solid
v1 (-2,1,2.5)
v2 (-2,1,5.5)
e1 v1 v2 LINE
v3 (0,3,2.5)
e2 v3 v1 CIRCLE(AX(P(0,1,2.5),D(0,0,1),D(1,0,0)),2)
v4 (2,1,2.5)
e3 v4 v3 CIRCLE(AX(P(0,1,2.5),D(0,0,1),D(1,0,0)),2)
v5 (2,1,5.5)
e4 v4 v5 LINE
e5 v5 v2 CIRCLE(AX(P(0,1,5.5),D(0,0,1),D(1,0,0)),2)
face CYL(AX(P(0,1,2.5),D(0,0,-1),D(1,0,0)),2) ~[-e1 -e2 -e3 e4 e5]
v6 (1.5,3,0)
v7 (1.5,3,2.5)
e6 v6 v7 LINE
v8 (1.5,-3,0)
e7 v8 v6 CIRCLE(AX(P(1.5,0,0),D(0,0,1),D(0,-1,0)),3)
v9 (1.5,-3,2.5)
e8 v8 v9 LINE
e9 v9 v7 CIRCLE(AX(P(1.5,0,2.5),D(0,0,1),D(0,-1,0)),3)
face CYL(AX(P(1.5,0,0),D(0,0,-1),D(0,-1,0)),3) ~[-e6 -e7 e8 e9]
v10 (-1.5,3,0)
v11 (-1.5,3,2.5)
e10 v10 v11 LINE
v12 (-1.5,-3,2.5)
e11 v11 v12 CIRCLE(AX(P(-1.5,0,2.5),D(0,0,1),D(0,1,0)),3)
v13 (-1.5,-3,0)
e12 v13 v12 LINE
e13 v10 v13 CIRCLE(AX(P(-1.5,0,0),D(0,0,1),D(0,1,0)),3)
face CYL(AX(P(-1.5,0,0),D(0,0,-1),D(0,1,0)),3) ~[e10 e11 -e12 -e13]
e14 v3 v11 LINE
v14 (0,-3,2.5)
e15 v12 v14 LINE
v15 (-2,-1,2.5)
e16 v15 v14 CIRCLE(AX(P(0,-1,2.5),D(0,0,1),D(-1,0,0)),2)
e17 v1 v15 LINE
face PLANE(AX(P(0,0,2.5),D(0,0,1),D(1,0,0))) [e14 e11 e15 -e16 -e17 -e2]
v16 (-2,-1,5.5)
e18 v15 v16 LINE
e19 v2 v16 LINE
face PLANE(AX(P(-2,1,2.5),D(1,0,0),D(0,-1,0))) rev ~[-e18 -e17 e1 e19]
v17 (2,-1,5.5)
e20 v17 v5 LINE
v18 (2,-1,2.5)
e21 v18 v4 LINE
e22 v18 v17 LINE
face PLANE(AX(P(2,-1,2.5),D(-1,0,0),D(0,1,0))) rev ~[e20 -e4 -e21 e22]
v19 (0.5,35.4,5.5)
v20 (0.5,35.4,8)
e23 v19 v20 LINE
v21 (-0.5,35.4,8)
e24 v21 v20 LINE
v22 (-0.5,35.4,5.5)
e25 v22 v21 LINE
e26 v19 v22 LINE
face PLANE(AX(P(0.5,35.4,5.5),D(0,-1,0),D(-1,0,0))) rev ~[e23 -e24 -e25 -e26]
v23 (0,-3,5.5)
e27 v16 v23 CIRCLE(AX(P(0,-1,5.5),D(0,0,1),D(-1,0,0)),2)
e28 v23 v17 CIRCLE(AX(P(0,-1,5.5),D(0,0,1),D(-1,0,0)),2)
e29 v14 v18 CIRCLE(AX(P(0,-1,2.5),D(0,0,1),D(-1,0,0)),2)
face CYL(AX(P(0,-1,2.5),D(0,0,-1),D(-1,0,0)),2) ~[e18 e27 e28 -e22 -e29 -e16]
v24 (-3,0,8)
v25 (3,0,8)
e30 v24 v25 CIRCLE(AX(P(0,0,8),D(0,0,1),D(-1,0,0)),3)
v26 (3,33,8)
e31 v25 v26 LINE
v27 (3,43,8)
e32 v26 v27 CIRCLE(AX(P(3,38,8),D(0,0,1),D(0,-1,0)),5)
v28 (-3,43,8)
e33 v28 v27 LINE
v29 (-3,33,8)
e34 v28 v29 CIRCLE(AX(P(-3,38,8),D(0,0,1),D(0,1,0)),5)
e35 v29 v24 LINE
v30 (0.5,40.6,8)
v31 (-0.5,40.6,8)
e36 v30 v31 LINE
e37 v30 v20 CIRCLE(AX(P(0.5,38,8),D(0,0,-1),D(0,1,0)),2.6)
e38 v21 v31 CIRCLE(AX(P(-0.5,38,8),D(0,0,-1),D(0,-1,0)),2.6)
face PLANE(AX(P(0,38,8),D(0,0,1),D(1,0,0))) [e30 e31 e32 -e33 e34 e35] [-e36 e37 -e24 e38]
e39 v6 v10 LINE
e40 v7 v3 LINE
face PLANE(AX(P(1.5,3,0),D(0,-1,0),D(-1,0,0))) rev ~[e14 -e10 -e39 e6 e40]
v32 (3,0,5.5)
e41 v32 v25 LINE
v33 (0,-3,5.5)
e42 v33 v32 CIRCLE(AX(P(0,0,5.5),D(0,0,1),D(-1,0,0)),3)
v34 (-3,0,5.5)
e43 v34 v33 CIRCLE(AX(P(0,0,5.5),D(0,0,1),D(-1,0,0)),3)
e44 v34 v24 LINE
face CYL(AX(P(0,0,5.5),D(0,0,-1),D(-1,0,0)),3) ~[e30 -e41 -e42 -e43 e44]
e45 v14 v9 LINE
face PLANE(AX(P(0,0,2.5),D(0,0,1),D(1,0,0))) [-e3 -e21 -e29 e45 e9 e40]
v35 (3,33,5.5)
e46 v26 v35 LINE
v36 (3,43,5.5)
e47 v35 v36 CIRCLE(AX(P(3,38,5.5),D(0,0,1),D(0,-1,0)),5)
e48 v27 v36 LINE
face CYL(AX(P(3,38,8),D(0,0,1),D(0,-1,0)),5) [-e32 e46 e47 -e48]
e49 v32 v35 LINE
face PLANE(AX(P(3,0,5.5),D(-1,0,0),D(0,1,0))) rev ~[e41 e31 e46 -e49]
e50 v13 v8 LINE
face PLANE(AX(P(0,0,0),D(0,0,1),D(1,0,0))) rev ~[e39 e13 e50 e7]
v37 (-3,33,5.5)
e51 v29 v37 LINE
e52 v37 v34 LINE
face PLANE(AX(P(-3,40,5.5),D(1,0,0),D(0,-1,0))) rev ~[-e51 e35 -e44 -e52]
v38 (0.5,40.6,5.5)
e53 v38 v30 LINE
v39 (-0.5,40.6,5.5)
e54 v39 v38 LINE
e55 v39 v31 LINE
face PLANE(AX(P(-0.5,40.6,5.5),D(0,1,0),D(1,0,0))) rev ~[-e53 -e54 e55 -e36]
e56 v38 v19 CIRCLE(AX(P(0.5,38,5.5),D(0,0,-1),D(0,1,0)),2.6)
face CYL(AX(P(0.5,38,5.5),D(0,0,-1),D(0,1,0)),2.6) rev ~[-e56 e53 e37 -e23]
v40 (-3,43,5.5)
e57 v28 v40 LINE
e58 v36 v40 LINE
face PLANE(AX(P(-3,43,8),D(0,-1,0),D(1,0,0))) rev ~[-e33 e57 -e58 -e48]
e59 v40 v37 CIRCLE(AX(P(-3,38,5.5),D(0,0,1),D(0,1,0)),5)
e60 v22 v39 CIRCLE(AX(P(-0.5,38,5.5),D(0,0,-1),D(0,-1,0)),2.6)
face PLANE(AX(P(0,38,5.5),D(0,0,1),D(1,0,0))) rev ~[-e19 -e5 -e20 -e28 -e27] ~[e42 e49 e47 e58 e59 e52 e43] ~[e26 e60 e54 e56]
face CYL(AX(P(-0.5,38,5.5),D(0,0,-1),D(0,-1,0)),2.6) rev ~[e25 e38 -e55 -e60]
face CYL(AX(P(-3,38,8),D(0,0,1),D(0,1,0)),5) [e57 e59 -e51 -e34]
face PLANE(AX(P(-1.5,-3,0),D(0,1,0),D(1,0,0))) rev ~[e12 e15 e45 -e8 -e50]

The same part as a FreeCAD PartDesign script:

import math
import FreeCAD as App
import Part
import Sketcher

V = App.Vector
Q = App.Units.Quantity

doc = App.newDocument("Part")
body = doc.addObject("PartDesign::Body", "Body")

sketch1 = body.newObject("Sketcher::SketchObject", "Sketch")
sketch1.AttachmentSupport = (doc.getObject("XY_Plane"), [""])
sketch1.MapMode = "FlatFace"
sketch1.addGeometry([
    Part.ArcOfCircle(Part.Circle(V(-1.5, 0, 0), V(0, 0, 1), 3), math.radians(90), math.radians(270)),
    Part.LineSegment(V(-1.5, -3, 0), V(1.5, -3, 0)),
    Part.ArcOfCircle(Part.Circle(V(1.5, 0, 0), V(0, 0, 1), 3), math.radians(-90), math.radians(90)),
    Part.LineSegment(V(1.5, 3, 0), V(-1.5, 3, 0)),
], False)
sketch1.addConstraint([
    Sketcher.Constraint("Tangent", 0, 2, 1, 1),
    Sketcher.Constraint("Tangent", 1, 2, 2, 1),
    Sketcher.Constraint("Tangent", 2, 2, 3, 1),
    Sketcher.Constraint("Tangent", 3, 2, 0, 1),
    Sketcher.Constraint("Horizontal", 1),
    Sketcher.Constraint("Horizontal", 3),
    Sketcher.Constraint("Symmetric", 0, 3, 2, 3, -1, 1),
    Sketcher.Constraint("Radius", 0, Q("3 mm")),
    Sketcher.Constraint("DistanceX", 1, 1, 1, 2, Q("3 mm")),
])
pad1 = body.newObject("PartDesign::Pad", "Pad")
pad1.Profile = sketch1
pad1.Length = 2.5

sketch2 = body.newObject("Sketcher::SketchObject", "Sketch001")
sketch2.AttachmentSupport = (doc.getObject("XY_Plane"), [""])
sketch2.MapMode = "FlatFace"
sketch2.AttachmentOffset = App.Placement(V(0, 0, 2.5), App.Rotation())
sketch2.addGeometry([
    Part.ArcOfCircle(Part.Circle(V(0, 1, 0), V(0, 0, 1), 2), math.radians(0), math.radians(180)),
    Part.LineSegment(V(-2, 1, 0), V(-2, -1, 0)),
    Part.ArcOfCircle(Part.Circle(V(0, -1, 0), V(0, 0, 1), 2), math.radians(180), math.radians(360)),
    Part.LineSegment(V(2, -1, 0), V(2, 1, 0)),
], False)
sketch2.addConstraint([
    Sketcher.Constraint("Tangent", 0, 2, 1, 1),
    Sketcher.Constraint("Tangent", 1, 2, 2, 1),
    Sketcher.Constraint("Tangent", 2, 2, 3, 1),
    Sketcher.Constraint("Tangent", 3, 2, 0, 1),
    Sketcher.Constraint("Vertical", 1),
    Sketcher.Constraint("Vertical", 3),
    Sketcher.Constraint("Symmetric", 0, 3, 2, 3, -1, 1),
    Sketcher.Constraint("Radius", 0, Q("2 mm")),
    Sketcher.Constraint("DistanceY", 1, 2, 1, 1, Q("2 mm")),
])
pad2 = body.newObject("PartDesign::Pad", "Pad001")
pad2.Profile = sketch2
pad2.Length = 3

sketch3 = body.newObject("Sketcher::SketchObject", "Sketch002")
sketch3.AttachmentSupport = (doc.getObject("XY_Plane"), [""])
sketch3.MapMode = "FlatFace"
sketch3.AttachmentOffset = App.Placement(V(0, 0, 5.5), App.Rotation())
sketch3.addGeometry([
    Part.ArcOfCircle(Part.Circle(V(0, 40, 0), V(0, 0, 1), 3), math.radians(0), math.radians(180)),
    Part.LineSegment(V(-3, 40, 0), V(-3, 0, 0)),
    Part.ArcOfCircle(Part.Circle(V(0, 0, 0), V(0, 0, 1), 3), math.radians(180), math.radians(360)),
    Part.LineSegment(V(3, 0, 0), V(3, 40, 0)),
], False)
sketch3.addConstraint([
    Sketcher.Constraint("Tangent", 0, 2, 1, 1),
    Sketcher.Constraint("Tangent", 1, 2, 2, 1),
    Sketcher.Constraint("Tangent", 2, 2, 3, 1),
    Sketcher.Constraint("Tangent", 3, 2, 0, 1),
    Sketcher.Constraint("Vertical", 1),
    Sketcher.Constraint("Vertical", 3),
    Sketcher.Constraint("Coincident", 2, 3, -1, 1),
    Sketcher.Constraint("Radius", 0, Q("3 mm")),
    Sketcher.Constraint("DistanceY", 1, 2, 1, 1, Q("40 mm")),
])
pad3 = body.newObject("PartDesign::Pad", "Pad002")
pad3.Profile = sketch3
pad3.Length = 2.5

sketch4 = body.newObject("Sketcher::SketchObject", "Sketch003")
sketch4.AttachmentSupport = (doc.getObject("XY_Plane"), [""])
sketch4.MapMode = "FlatFace"
sketch4.AttachmentOffset = App.Placement(V(0, 0, 8), App.Rotation())
sketch4.addGeometry([
    Part.ArcOfCircle(Part.Circle(V(-3, 38, 0), V(0, 0, 1), 5), math.radians(90), math.radians(270)),
    Part.LineSegment(V(-3, 33, 0), V(3, 33, 0)),
    Part.ArcOfCircle(Part.Circle(V(3, 38, 0), V(0, 0, 1), 5), math.radians(-90), math.radians(90)),
    Part.LineSegment(V(3, 43, 0), V(-3, 43, 0)),
], False)
sketch4.addConstraint([
    Sketcher.Constraint("Tangent", 0, 2, 1, 1),
    Sketcher.Constraint("Tangent", 1, 2, 2, 1),
    Sketcher.Constraint("Tangent", 2, 2, 3, 1),
    Sketcher.Constraint("Tangent", 3, 2, 0, 1),
    Sketcher.Constraint("Horizontal", 1),
    Sketcher.Constraint("Horizontal", 3),
    Sketcher.Constraint("Radius", 0, Q("5 mm")),
    Sketcher.Constraint("DistanceX", 1, 1, 1, 2, Q("6 mm")),
    Sketcher.Constraint("DistanceX", 0, 3, -1, 1, Q("3 mm")),
    Sketcher.Constraint("DistanceY", -1, 1, 0, 3, Q("38 mm")),
])
pad4 = body.newObject("PartDesign::Pad", "Pad003")
pad4.Profile = sketch4
pad4.Length = 2.5
pad4.Reversed = True

sketch5 = body.newObject("Sketcher::SketchObject", "Sketch004")
sketch5.AttachmentSupport = (doc.getObject("XY_Plane"), [""])
sketch5.MapMode = "FlatFace"
sketch5.AttachmentOffset = App.Placement(V(0, 0, 5.5), App.Rotation())
sketch5.addGeometry([
    Part.ArcOfCircle(Part.Circle(V(-0.5, 38, 0), V(0, 0, 1), 2.6), math.radians(90), math.radians(270)),
    Part.LineSegment(V(-0.5, 40.6, 0), V(0.5, 40.6, 0)),
    Part.ArcOfCircle(Part.Circle(V(0.5, 38, 0), V(0, 0, 1), 2.6), math.radians(-90), math.radians(90)),
    Part.LineSegment(V(0.5, 35.4, 0), V(-0.5, 35.4, 0)),
], False)
sketch5.addConstraint([
    Sketcher.Constraint("Tangent", 0, 1, 1, 1),
    Sketcher.Constraint("Tangent", 1, 2, 2, 2),
    Sketcher.Constraint("Tangent", 2, 1, 3, 1),
    Sketcher.Constraint("Tangent", 3, 2, 0, 2),
    Sketcher.Constraint("Horizontal", 1),
    Sketcher.Constraint("Horizontal", 3),
    Sketcher.Constraint("Radius", 0, Q("2.6 mm")),
    Sketcher.Constraint("DistanceX", 1, 1, 1, 2, Q("1 mm")),
    Sketcher.Constraint("DistanceY", -1, 1, 0, 3, Q("38 mm")),
    Sketcher.Constraint("DistanceX", 0, 3, -1, 1, Q("0.5 mm")),
])
pocket1 = body.newObject("PartDesign::Pocket", "Pocket")
pocket1.Profile = sketch5
pocket1.Type = "ThroughAll"
pocket1.Reversed = True

doc.recompute()
